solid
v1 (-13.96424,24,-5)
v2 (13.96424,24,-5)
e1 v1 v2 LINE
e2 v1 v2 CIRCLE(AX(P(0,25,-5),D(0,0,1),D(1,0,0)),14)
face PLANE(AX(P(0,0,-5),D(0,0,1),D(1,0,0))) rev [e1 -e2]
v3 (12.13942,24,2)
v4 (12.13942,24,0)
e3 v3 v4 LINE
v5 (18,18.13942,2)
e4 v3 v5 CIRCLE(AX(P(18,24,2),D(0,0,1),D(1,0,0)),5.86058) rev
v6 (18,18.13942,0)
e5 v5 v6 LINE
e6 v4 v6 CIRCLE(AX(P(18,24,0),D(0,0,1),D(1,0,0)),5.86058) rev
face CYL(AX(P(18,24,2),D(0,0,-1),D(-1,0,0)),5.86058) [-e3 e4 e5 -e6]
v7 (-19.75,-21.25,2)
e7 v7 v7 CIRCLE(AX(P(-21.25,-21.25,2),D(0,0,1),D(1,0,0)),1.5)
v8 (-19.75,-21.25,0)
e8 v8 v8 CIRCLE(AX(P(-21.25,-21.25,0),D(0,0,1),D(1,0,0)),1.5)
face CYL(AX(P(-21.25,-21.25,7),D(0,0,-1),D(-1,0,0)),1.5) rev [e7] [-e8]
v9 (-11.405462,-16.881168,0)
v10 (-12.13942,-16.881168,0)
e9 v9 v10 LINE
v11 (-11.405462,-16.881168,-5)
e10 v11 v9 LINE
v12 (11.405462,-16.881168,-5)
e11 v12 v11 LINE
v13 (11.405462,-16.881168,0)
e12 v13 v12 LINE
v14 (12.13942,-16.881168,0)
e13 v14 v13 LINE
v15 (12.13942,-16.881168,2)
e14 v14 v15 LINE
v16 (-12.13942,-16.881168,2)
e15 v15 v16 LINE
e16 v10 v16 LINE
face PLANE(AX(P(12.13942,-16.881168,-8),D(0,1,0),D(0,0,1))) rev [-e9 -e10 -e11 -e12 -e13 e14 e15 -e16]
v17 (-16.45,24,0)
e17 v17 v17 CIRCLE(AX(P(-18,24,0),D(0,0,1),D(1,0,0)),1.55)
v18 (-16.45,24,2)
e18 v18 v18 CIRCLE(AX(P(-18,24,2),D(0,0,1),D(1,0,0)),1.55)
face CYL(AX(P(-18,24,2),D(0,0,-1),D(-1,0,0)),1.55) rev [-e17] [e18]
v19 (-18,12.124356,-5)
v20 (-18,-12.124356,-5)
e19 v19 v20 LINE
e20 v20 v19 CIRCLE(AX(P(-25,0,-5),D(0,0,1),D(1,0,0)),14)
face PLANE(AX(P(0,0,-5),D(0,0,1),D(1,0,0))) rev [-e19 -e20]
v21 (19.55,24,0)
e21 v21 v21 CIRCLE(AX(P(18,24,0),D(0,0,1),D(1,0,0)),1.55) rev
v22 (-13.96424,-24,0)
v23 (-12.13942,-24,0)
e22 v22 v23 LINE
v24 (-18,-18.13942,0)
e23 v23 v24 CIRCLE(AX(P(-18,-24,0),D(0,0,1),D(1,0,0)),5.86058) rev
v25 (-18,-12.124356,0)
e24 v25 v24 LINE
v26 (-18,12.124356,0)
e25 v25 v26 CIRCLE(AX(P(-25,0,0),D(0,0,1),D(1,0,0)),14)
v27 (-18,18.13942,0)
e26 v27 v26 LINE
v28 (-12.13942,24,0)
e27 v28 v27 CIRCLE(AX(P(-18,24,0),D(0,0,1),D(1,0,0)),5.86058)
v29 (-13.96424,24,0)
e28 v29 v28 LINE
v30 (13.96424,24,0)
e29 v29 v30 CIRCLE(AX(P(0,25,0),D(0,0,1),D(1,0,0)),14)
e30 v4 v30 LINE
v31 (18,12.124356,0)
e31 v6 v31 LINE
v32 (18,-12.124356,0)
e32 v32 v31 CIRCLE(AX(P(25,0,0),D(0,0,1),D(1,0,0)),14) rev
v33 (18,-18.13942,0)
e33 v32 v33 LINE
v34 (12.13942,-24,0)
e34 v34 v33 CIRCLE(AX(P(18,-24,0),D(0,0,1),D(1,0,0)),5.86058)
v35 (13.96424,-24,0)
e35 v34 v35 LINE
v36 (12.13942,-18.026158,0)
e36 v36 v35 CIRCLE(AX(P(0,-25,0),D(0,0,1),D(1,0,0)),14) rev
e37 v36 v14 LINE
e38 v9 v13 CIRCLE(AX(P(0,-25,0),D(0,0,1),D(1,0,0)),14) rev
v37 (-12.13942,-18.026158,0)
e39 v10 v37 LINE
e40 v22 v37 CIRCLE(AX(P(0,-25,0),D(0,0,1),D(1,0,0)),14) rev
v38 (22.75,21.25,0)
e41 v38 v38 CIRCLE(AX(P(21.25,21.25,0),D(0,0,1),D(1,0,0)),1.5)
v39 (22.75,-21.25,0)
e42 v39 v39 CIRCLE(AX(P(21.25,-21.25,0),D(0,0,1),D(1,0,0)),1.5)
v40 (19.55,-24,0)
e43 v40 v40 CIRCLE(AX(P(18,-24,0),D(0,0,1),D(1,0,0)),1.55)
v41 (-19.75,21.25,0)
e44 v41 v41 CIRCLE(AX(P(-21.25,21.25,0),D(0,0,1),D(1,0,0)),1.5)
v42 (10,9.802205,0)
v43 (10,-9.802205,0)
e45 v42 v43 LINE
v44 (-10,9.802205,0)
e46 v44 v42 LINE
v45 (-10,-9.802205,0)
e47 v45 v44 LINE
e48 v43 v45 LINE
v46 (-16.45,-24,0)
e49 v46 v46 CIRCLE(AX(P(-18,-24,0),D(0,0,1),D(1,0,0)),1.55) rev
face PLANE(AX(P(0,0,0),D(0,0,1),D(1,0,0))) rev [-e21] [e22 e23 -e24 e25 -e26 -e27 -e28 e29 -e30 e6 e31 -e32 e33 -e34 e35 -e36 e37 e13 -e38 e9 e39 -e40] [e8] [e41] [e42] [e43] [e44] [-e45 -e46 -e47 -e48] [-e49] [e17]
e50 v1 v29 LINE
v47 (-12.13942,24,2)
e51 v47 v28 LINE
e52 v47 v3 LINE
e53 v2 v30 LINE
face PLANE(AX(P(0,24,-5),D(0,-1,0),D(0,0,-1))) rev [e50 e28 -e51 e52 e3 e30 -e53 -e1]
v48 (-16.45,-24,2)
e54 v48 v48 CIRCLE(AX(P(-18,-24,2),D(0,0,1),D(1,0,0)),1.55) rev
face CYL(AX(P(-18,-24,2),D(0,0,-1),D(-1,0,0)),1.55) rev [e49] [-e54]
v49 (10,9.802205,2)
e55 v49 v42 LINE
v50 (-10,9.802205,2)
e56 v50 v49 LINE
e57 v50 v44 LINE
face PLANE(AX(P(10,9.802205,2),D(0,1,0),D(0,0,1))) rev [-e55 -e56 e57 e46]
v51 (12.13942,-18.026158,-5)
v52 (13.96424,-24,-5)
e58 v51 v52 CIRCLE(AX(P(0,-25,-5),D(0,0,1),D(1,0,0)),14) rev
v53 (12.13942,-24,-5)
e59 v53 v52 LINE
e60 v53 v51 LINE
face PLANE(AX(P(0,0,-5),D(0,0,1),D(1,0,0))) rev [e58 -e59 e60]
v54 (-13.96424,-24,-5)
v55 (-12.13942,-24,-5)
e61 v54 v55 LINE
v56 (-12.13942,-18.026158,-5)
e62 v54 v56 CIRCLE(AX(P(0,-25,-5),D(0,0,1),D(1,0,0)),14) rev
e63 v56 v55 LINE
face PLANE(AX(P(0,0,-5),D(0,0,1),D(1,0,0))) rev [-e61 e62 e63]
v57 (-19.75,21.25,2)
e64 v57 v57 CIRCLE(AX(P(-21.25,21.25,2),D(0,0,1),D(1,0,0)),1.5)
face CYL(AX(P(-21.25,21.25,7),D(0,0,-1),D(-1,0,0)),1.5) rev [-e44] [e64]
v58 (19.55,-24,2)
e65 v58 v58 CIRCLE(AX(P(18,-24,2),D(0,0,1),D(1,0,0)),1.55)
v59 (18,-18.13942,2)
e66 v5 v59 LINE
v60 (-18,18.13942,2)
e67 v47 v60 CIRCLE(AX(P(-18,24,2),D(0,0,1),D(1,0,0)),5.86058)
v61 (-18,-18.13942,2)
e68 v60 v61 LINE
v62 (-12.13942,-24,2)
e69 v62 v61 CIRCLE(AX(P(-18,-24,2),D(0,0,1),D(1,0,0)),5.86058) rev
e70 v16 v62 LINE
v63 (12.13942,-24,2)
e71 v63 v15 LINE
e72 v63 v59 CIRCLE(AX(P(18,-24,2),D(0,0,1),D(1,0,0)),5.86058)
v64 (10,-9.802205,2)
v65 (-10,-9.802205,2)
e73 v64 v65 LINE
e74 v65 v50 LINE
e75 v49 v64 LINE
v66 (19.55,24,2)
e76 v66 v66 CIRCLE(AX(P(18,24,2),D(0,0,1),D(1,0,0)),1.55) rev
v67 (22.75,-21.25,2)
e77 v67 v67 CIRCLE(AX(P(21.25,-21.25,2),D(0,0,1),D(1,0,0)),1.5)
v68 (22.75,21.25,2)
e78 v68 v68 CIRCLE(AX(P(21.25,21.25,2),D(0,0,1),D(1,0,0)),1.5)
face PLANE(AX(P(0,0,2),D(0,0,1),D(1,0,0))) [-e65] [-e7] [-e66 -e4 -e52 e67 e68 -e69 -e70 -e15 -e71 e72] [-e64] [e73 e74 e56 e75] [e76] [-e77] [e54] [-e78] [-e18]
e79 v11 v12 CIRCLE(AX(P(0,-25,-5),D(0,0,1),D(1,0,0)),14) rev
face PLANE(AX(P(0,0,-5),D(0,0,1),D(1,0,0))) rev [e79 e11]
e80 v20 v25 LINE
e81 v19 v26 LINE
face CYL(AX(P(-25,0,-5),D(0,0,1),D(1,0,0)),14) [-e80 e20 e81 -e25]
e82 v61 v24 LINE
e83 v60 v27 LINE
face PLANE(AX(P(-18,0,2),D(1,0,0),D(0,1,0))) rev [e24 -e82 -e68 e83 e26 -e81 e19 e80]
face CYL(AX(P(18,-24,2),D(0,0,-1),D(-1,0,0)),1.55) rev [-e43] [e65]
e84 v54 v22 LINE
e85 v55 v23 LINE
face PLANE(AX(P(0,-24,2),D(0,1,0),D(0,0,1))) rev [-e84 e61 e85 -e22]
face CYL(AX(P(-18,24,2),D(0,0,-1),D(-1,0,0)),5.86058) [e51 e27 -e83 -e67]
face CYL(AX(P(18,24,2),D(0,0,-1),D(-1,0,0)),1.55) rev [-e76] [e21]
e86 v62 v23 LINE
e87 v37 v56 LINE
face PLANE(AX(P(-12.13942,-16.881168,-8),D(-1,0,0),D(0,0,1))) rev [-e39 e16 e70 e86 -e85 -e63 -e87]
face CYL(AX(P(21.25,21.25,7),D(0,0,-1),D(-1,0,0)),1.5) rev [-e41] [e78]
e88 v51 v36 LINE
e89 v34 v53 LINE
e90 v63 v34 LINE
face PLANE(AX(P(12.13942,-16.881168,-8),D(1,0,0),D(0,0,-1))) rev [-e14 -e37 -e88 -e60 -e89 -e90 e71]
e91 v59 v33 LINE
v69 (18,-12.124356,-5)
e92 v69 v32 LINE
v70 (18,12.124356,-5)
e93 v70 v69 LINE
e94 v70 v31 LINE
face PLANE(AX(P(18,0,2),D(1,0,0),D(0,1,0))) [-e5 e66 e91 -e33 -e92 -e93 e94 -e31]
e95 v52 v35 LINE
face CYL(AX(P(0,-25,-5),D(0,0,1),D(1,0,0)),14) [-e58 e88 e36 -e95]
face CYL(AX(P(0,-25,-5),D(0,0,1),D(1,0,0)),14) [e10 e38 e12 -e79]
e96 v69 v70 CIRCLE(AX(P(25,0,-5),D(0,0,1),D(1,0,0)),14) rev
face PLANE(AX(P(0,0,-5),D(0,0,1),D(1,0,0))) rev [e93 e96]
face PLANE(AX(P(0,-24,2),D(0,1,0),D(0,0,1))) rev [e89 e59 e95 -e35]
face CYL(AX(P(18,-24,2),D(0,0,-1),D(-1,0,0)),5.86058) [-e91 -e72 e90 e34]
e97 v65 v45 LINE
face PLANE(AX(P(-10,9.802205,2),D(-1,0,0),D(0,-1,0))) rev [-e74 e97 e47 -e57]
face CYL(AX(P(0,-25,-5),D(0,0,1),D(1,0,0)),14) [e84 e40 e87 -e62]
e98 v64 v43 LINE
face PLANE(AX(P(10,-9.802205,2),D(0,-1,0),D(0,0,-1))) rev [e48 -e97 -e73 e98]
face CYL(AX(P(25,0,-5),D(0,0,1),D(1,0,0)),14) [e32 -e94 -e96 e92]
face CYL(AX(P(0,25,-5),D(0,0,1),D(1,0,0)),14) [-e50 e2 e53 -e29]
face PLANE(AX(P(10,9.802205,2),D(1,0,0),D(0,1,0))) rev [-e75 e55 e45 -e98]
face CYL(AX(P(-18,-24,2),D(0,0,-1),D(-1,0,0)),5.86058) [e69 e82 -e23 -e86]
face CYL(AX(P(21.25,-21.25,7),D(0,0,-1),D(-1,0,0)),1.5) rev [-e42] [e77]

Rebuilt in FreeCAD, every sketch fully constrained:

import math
import FreeCAD as App
import Part
import Sketcher
from FreeCAD import Vector
Q = App.Units.Quantity

doc = App.newDocument("Part")
body = doc.addObject("PartDesign::Body", "Body")

# Sketch on XY plane
sketch1 = body.newObject("Sketcher::SketchObject", "Sketch")
sketch1.AttachmentSupport = (doc.getObject("XY_Plane"), [""])
sketch1.MapMode = "FlatFace"
sketch1.addGeometry([
    Part.LineSegment(Vector(14, 24, 0), Vector(-14, 24, 0)),
    Part.ArcOfCircle(Part.Circle(Vector(0, 25, 0), Vector(0, 0, 1), 14), math.radians(-176), math.radians(-4)),
], False)
sketch1.addConstraint([
    Sketcher.Constraint("Coincident", 0, 1, 1, 2),
    Sketcher.Constraint("Coincident", 1, 1, 0, 2),
    Sketcher.Constraint("Horizontal", 0),
    Sketcher.Constraint("PointOnObject", 1, 3, -2),
    Sketcher.Constraint("Radius", 1, Q("14 mm")),
    Sketcher.Constraint("DistanceY", -1, 1, 1, 3, Q("25 mm")),
    Sketcher.Constraint("DistanceY", -1, 1, 0, 1, Q("24 mm")),
])
pad1 = body.newObject("PartDesign::Pad", "Pad")
pad1.Profile = sketch1
pad1.Length = 5
pad1.Reversed = True
body2 = doc.addObject("PartDesign::Body", "Body001")

# Sketch on XY plane
sketch2 = body2.newObject("Sketcher::SketchObject", "Sketch001")
sketch2.AttachmentSupport = (doc.getObject("XY_Plane001"), [""])
sketch2.MapMode = "FlatFace"
sketch2.addGeometry([
    Part.ArcOfCircle(Part.Circle(Vector(-25, 0, 0), Vector(0, 0, 1), 14), math.radians(-60), math.radians(60)),
    Part.LineSegment(Vector(-18, 12, 0), Vector(-18, -12, 0)),
], False)
sketch2.addConstraint([
    Sketcher.Constraint("Coincident", 0, 1, 1, 2),
    Sketcher.Constraint("Coincident", 1, 1, 0, 2),
    Sketcher.Constraint("Vertical", 1),
    Sketcher.Constraint("PointOnObject", 0, 3, -1),
    Sketcher.Constraint("Radius", 0, Q("14 mm")),
    Sketcher.Constraint("DistanceX", 0, 3, -1, 1, Q("25 mm")),
    Sketcher.Constraint("DistanceX", 0, 1, -1, 1, Q("18 mm")),
])
pad2 = body2.newObject("PartDesign::Pad", "Pad001")
pad2.Profile = sketch2
pad2.Length = 5
pad2.Reversed = True
body3 = doc.addObject("PartDesign::Body", "Body002")

# Sketch on XY plane
sketch3 = body3.newObject("Sketcher::SketchObject", "Sketch002")
sketch3.AttachmentSupport = (doc.getObject("XY_Plane002"), [""])
sketch3.MapMode = "FlatFace"
sketch3.addGeometry([
    Part.LineSegment(Vector(18, -12, 0), Vector(18, 12, 0)),
    Part.ArcOfCircle(Part.Circle(Vector(25, 0, 0), Vector(0, 0, 1), 14), math.radians(120), math.radians(240)),
], False)
sketch3.addConstraint([
    Sketcher.Constraint("Coincident", 0, 1, 1, 2),
    Sketcher.Constraint("Coincident", 1, 1, 0, 2),
    Sketcher.Constraint("Vertical", 0),
    Sketcher.Constraint("PointOnObject", 1, 3, -1),
    Sketcher.Constraint("Radius", 1, Q("14 mm")),
    Sketcher.Constraint("DistanceX", -1, 1, 1, 3, Q("25 mm")),
    Sketcher.Constraint("DistanceX", -1, 1, 0, 1, Q("18 mm")),
])
pad3 = body3.newObject("PartDesign::Pad", "Pad002")
pad3.Profile = sketch3
pad3.Length = 5
pad3.Reversed = True
body4 = doc.addObject("PartDesign::Body", "Body003")

# Sketch on XY plane
sketch4 = body4.newObject("Sketcher::SketchObject", "Sketch003")
sketch4.AttachmentSupport = (doc.getObject("XY_Plane003"), [""])
sketch4.MapMode = "FlatFace"
sketch4.addGeometry([
    Part.ArcOfCircle(Part.Circle(Vector(0, -25, 0), Vector(0, 0, 1), 14), math.radians(4), math.radians(176)),
    Part.LineSegment(Vector(-14, -24, 0), Vector(14, -24, 0)),
], False)
sketch4.addConstraint([
    Sketcher.Constraint("Coincident", 0, 1, 1, 2),
    Sketcher.Constraint("Coincident", 1, 1, 0, 2),
    Sketcher.Constraint("Horizontal", 1),
    Sketcher.Constraint("PointOnObject", 0, 3, -2),
    Sketcher.Constraint("Radius", 0, Q("14 mm")),
    Sketcher.Constraint("DistanceY", 0, 3, -1, 1, Q("25 mm")),
    Sketcher.Constraint("DistanceY", 0, 1, -1, 1, Q("24 mm")),
])
pad4 = body4.newObject("PartDesign::Pad", "Pad003")
pad4.Profile = sketch4
pad4.Length = 5
pad4.Reversed = True
body.AllowCompound = True
doc.recompute()

boolean = body.newObject("PartDesign::Boolean", "Boolean")
boolean.Type = "Fuse"
boolean.addObjects([body2])
doc.recompute()

boolean2 = body.newObject("PartDesign::Boolean", "Boolean001")
boolean2.Type = "Fuse"
boolean2.addObjects([body3])
doc.recompute()

boolean3 = body.newObject("PartDesign::Boolean", "Boolean002")
boolean3.Type = "Fuse"
boolean3.addObjects([body4])

# Sketch on XY plane
sketch5 = body.newObject("Sketcher::SketchObject", "Sketch004")
sketch5.AttachmentSupport = (doc.getObject("XY_Plane"), [""])
sketch5.MapMode = "FlatFace"
sketch5.addGeometry([
    Part.LineSegment(Vector(-18, 18.1, 0), Vector(-18, -18.1, 0)),  # 0
    Part.ArcOfCircle(Part.Circle(Vector(-18, -24, 0), Vector(0, 0, 1), 5.9), math.radians(90), math.radians(360)),  # 1
    Part.LineSegment(Vector(-12.1, -24, 0), Vector(12.1, -24, 0)),  # 2
    Part.ArcOfCircle(Part.Circle(Vector(18, -24, 0), Vector(0, 0, 1), 5.9), math.radians(180), math.radians(360)),  # 3
    Part.ArcOfCircle(Part.Circle(Vector(18, -24, 0), Vector(0, 0, 1), 5.9), math.radians(0), math.radians(90)),  # 4
    Part.LineSegment(Vector(18, -18.1, 0), Vector(18, 18.1, 0)),  # 5
    Part.ArcOfCircle(Part.Circle(Vector(18, 24, 0), Vector(0, 0, 1), 5.9), math.radians(-90), math.radians(0)),  # 6
    Part.ArcOfCircle(Part.Circle(Vector(18, 24, 0), Vector(0, 0, 1), 5.9), math.radians(0), math.radians(180)),  # 7
    Part.LineSegment(Vector(12.1, 24, 0), Vector(-12.1, 24, 0)),  # 8
    Part.ArcOfCircle(Part.Circle(Vector(-18, 24, 0), Vector(0, 0, 1), 5.9), math.radians(0), math.radians(270)),  # 9
    Part.ArcOfCircle(Part.Circle(Vector(-18, -24, 0), Vector(0, 0, 1), 1.5), math.radians(0), math.radians(90)),  # 10
    Part.ArcOfCircle(Part.Circle(Vector(-18, -24, 0), Vector(0, 0, 1), 1.6), math.radians(90), math.radians(360)),  # 11
    Part.ArcOfCircle(Part.Circle(Vector(18, -24, 0), Vector(0, 0, 1), 1.5), math.radians(90), math.radians(180)),  # 12
    Part.ArcOfCircle(Part.Circle(Vector(18, -24, 0), Vector(0, 0, 1), 1.5), math.radians(0), math.radians(90)),  # 13
    Part.ArcOfCircle(Part.Circle(Vector(18, -24, 0), Vector(0, 0, 1), 1.6), math.radians(180), math.radians(360)),  # 14
    Part.ArcOfCircle(Part.Circle(Vector(-18, 24, 0), Vector(0, 0, 1), 1.6), math.radians(0), math.radians(270)),  # 15
    Part.ArcOfCircle(Part.Circle(Vector(-18, 24, 0), Vector(0, 0, 1), 1.5), math.radians(-90), math.radians(0)),  # 16
    Part.ArcOfCircle(Part.Circle(Vector(18, 24, 0), Vector(0, 0, 1), 1.6), math.radians(0), math.radians(180)),  # 17
    Part.ArcOfCircle(Part.Circle(Vector(18, 24, 0), Vector(0, 0, 1), 1.5), math.radians(-90), math.radians(0)),  # 18
    Part.ArcOfCircle(Part.Circle(Vector(18, 24, 0), Vector(0, 0, 1), 1.5), math.radians(180), math.radians(270)),  # 19
], False)
sketch5.addConstraint([
    Sketcher.Constraint("Coincident", 0, 2, 1, 1),
    Sketcher.Constraint("Coincident", 1, 2, 2, 1),
    Sketcher.Constraint("Coincident", 2, 2, 3, 1),
    Sketcher.Constraint("Tangent", 3, 2, 4, 1),
    Sketcher.Constraint("Coincident", 4, 2, 5, 1),
    Sketcher.Constraint("Coincident", 5, 2, 6, 1),
    Sketcher.Constraint("Tangent", 6, 2, 7, 1),
    Sketcher.Constraint("Coincident", 7, 2, 8, 1),
    Sketcher.Constraint("Coincident", 8, 2, 9, 1),
    Sketcher.Constraint("Coincident", 9, 2, 0, 1),
    Sketcher.Constraint("Tangent", 10, 1, 11, 2),
    Sketcher.Constraint("Coincident", 11, 1, 10, 2),
    Sketcher.Constraint("Tangent", 12, 1, 13, 2),
    Sketcher.Constraint("Tangent", 13, 1, 14, 2),
    Sketcher.Constraint("Tangent", 14, 1, 12, 2),
    Sketcher.Constraint("Tangent", 15, 1, 16, 2),
    Sketcher.Constraint("Coincident", 16, 1, 15, 2),
    Sketcher.Constraint("Tangent", 17, 1, 18, 2),
    Sketcher.Constraint("Tangent", 18, 1, 19, 2),
    Sketcher.Constraint("Tangent", 19, 1, 17, 2),
    Sketcher.Constraint("Vertical", 0),
    Sketcher.Constraint("Horizontal", 2),
    Sketcher.Constraint("Vertical", 5),
    Sketcher.Constraint("Horizontal", 8),
    Sketcher.Constraint("Coincident", 10, 3, 1, 3),
    Sketcher.Constraint("Coincident", 12, 3, 3, 3),
    Sketcher.Constraint("Coincident", 15, 3, 9, 3),
    Sketcher.Constraint("Coincident", 17, 3, 6, 3),
    Sketcher.Constraint("Equal", 1, 3),
    Sketcher.Constraint("Equal", 3, 4),
    Sketcher.Constraint("Equal", 4, 6),
    Sketcher.Constraint("Equal", 6, 7),
    Sketcher.Constraint("Equal", 7, 9),
    Sketcher.Constraint("Equal", 11, 12),
    Sketcher.Constraint("Equal", 14, 15),
    Sketcher.Constraint("Equal", 16, 17),
    Sketcher.Constraint("Symmetric", 1, 3, 6, 3, -1, 1),
    Sketcher.Constraint("Symmetric", 3, 3, 9, 3, -1, 1),
    Sketcher.Constraint("Symmetric", 1, 3, 3, 3, -2),
    Sketcher.Constraint("Horizontal", 14, 3, 1, 2),
    Sketcher.Constraint("Horizontal", 2, 2, 3, 2),
    Sketcher.Constraint("Horizontal", 19, 3, 6, 2),
    Sketcher.Constraint("Horizontal", 6, 2, 7, 2),
    Sketcher.Constraint("Horizontal", 3, 2, 10, 1),
    Sketcher.Constraint("Horizontal", 10, 1, 13, 1),
    Sketcher.Constraint("Horizontal", 13, 1, 14, 1),
    Sketcher.Constraint("Horizontal", 8, 2, 15, 1),
    Sketcher.Constraint("Horizontal", 15, 1, 17, 1),
    Sketcher.Constraint("Horizontal", 17, 1, 19, 1),
    Sketcher.Constraint("Vertical", 16, 3, 0, 2),
    Sketcher.Constraint("Vertical", 19, 3, 4, 2),
    Sketcher.Constraint("Vertical", 9, 2, 11, 1),
    Sketcher.Constraint("Vertical", 5, 2, 12, 1),
    Sketcher.Constraint("Vertical", 11, 1, 16, 1),
    Sketcher.Constraint("Vertical", 12, 1, 18, 1),
    Sketcher.Constraint("Radius", 10, Q("1.55 mm")),
    Sketcher.Constraint("DistanceX", 1, 3, -1, 1, Q("18 mm")),
    Sketcher.Constraint("DistanceY", 1, 3, -1, 1, Q("24 mm")),
    Sketcher.Constraint("Radius", 1, Q("5.86058 mm")),
])
pad5 = body.newObject("PartDesign::Pad", "Pad004")
pad5.Profile = sketch5
pad5.Length = 2

# Sketch on XY plane
sketch6 = body.newObject("Sketcher::SketchObject", "Sketch005")
sketch6.AttachmentSupport = (doc.getObject("XY_Plane"), [""])
sketch6.MapMode = "FlatFace"
sketch6.addGeometry([
    Part.LineSegment(Vector(10, 10, 0), Vector(10, -10, 0)),
    Part.LineSegment(Vector(10, -10, 0), Vector(-10, -10, 0)),
    Part.LineSegment(Vector(-10, -10, 0), Vector(-10, 10, 0)),
    Part.LineSegment(Vector(-10, 10, 0), Vector(10, 10, 0)),
], False)
sketch6.addConstraint([
    Sketcher.Constraint("Coincident", 0, 2, 1, 1),
    Sketcher.Constraint("Coincident", 1, 2, 2, 1),
    Sketcher.Constraint("Coincident", 2, 2, 3, 1),
    Sketcher.Constraint("Coincident", 3, 2, 0, 1),
    Sketcher.Constraint("Vertical", 0),
    Sketcher.Constraint("Horizontal", 1),
    Sketcher.Constraint("Vertical", 2),
    Sketcher.Constraint("Horizontal", 3),
    Sketcher.Constraint("Symmetric", 0, 2, 2, 2, -1, 1),
    Sketcher.Constraint("DistanceX", 1, 2, 1, 1, Q("20 mm")),
    Sketcher.Constraint("DistanceY", 0, 2, 0, 1, Q("19.60441 mm")),
])
pocket1 = body.newObject("PartDesign::Pocket", "Pocket")
pocket1.Profile = sketch6
pocket1.Length = 2
pocket1.Reversed = True

# Sketch on XY plane
sketch7 = body.newObject("Sketcher::SketchObject", "Sketch006")
sketch7.AttachmentSupport = (doc.getObject("XY_Plane"), [""])
sketch7.MapMode = "FlatFace"
sketch7.AttachmentOffset = App.Placement(Vector(0, 0, -5), App.Rotation())
sketch7.addGeometry([
    Part.Circle(Vector(-21.2, -21.2, 0), Vector(0, 0, 1), 1.5),
    Part.Circle(Vector(-21.2, 21.2, 0), Vector(0, 0, 1), 1.5),
    Part.Circle(Vector(21.2, 21.2, 0), Vector(0, 0, 1), 1.5),
    Part.Circle(Vector(21.2, -21.2, 0), Vector(0, 0, 1), 1.5),
], False)
sketch7.addConstraint([
    Sketcher.Constraint("Equal", 0, 1),
    Sketcher.Constraint("Equal", 1, 2),
    Sketcher.Constraint("Equal", 2, 3),
    Sketcher.Constraint("Symmetric", 0, 3, 2, 3, -1, 1),
    Sketcher.Constraint("Symmetric", 1, 3, 3, 3, -1, 1),
    Sketcher.Constraint("Symmetric", 1, 3, 2, 3, -2),
    Sketcher.Constraint("Diameter", 0, Q("3 mm")),
    Sketcher.Constraint("DistanceY", 0, 3, 1, 3, Q("42.5 mm")),
    Sketcher.Constraint("DistanceX", 1, 3, 2, 3, Q("42.5 mm")),
])
pocket2 = body.newObject("PartDesign::Pocket", "Pocket001")
pocket2.Profile = sketch7
pocket2.Length = 12
pocket2.Reversed = True

# Sketch on XY plane
sketch8 = body.newObject("Sketcher::SketchObject", "Sketch007")
sketch8.AttachmentSupport = (doc.getObject("XY_Plane"), [""])
sketch8.MapMode = "FlatFace"
sketch8.AttachmentOffset = App.Placement(Vector(0, 0, 2), App.Rotation())
sketch8.addGeometry([
    Part.LineSegment(Vector(-12, -17, 0), Vector(-12, -31, 0)),
    Part.LineSegment(Vector(-12, -31, 0), Vector(12, -31, 0)),
    Part.LineSegment(Vector(12, -31, 0), Vector(12, -17, 0)),
    Part.LineSegment(Vector(12, -17, 0), Vector(-12, -17, 0)),
], False)
sketch8.addConstraint([
    Sketcher.Constraint("Coincident", 0, 2, 1, 1),
    Sketcher.Constraint("Coincident", 1, 2, 2, 1),
    Sketcher.Constraint("Coincident", 2, 2, 3, 1),
    Sketcher.Constraint("Coincident", 3, 2, 0, 1),
    Sketcher.Constraint("Vertical", 0),
    Sketcher.Constraint("Horizontal", 1),
    Sketcher.Constraint("Vertical", 2),
    Sketcher.Constraint("Horizontal", 3),
    Sketcher.Constraint("DistanceX", 1, 1, 1, 2, Q("24.278841 mm")),
    Sketcher.Constraint("DistanceY", 0, 2, 0, 1, Q("14.237664 mm")),
    Sketcher.Constraint("DistanceX", 0, 2, -1, 1, Q("12.13942 mm")),
    Sketcher.Constraint("DistanceY", 0, 2, -1, 1, Q("31.118832 mm")),
])
pocket3 = body.newObject("PartDesign::Pocket", "Pocket002")
pocket3.Profile = sketch8
pocket3.Length = 10

doc.recompute()
